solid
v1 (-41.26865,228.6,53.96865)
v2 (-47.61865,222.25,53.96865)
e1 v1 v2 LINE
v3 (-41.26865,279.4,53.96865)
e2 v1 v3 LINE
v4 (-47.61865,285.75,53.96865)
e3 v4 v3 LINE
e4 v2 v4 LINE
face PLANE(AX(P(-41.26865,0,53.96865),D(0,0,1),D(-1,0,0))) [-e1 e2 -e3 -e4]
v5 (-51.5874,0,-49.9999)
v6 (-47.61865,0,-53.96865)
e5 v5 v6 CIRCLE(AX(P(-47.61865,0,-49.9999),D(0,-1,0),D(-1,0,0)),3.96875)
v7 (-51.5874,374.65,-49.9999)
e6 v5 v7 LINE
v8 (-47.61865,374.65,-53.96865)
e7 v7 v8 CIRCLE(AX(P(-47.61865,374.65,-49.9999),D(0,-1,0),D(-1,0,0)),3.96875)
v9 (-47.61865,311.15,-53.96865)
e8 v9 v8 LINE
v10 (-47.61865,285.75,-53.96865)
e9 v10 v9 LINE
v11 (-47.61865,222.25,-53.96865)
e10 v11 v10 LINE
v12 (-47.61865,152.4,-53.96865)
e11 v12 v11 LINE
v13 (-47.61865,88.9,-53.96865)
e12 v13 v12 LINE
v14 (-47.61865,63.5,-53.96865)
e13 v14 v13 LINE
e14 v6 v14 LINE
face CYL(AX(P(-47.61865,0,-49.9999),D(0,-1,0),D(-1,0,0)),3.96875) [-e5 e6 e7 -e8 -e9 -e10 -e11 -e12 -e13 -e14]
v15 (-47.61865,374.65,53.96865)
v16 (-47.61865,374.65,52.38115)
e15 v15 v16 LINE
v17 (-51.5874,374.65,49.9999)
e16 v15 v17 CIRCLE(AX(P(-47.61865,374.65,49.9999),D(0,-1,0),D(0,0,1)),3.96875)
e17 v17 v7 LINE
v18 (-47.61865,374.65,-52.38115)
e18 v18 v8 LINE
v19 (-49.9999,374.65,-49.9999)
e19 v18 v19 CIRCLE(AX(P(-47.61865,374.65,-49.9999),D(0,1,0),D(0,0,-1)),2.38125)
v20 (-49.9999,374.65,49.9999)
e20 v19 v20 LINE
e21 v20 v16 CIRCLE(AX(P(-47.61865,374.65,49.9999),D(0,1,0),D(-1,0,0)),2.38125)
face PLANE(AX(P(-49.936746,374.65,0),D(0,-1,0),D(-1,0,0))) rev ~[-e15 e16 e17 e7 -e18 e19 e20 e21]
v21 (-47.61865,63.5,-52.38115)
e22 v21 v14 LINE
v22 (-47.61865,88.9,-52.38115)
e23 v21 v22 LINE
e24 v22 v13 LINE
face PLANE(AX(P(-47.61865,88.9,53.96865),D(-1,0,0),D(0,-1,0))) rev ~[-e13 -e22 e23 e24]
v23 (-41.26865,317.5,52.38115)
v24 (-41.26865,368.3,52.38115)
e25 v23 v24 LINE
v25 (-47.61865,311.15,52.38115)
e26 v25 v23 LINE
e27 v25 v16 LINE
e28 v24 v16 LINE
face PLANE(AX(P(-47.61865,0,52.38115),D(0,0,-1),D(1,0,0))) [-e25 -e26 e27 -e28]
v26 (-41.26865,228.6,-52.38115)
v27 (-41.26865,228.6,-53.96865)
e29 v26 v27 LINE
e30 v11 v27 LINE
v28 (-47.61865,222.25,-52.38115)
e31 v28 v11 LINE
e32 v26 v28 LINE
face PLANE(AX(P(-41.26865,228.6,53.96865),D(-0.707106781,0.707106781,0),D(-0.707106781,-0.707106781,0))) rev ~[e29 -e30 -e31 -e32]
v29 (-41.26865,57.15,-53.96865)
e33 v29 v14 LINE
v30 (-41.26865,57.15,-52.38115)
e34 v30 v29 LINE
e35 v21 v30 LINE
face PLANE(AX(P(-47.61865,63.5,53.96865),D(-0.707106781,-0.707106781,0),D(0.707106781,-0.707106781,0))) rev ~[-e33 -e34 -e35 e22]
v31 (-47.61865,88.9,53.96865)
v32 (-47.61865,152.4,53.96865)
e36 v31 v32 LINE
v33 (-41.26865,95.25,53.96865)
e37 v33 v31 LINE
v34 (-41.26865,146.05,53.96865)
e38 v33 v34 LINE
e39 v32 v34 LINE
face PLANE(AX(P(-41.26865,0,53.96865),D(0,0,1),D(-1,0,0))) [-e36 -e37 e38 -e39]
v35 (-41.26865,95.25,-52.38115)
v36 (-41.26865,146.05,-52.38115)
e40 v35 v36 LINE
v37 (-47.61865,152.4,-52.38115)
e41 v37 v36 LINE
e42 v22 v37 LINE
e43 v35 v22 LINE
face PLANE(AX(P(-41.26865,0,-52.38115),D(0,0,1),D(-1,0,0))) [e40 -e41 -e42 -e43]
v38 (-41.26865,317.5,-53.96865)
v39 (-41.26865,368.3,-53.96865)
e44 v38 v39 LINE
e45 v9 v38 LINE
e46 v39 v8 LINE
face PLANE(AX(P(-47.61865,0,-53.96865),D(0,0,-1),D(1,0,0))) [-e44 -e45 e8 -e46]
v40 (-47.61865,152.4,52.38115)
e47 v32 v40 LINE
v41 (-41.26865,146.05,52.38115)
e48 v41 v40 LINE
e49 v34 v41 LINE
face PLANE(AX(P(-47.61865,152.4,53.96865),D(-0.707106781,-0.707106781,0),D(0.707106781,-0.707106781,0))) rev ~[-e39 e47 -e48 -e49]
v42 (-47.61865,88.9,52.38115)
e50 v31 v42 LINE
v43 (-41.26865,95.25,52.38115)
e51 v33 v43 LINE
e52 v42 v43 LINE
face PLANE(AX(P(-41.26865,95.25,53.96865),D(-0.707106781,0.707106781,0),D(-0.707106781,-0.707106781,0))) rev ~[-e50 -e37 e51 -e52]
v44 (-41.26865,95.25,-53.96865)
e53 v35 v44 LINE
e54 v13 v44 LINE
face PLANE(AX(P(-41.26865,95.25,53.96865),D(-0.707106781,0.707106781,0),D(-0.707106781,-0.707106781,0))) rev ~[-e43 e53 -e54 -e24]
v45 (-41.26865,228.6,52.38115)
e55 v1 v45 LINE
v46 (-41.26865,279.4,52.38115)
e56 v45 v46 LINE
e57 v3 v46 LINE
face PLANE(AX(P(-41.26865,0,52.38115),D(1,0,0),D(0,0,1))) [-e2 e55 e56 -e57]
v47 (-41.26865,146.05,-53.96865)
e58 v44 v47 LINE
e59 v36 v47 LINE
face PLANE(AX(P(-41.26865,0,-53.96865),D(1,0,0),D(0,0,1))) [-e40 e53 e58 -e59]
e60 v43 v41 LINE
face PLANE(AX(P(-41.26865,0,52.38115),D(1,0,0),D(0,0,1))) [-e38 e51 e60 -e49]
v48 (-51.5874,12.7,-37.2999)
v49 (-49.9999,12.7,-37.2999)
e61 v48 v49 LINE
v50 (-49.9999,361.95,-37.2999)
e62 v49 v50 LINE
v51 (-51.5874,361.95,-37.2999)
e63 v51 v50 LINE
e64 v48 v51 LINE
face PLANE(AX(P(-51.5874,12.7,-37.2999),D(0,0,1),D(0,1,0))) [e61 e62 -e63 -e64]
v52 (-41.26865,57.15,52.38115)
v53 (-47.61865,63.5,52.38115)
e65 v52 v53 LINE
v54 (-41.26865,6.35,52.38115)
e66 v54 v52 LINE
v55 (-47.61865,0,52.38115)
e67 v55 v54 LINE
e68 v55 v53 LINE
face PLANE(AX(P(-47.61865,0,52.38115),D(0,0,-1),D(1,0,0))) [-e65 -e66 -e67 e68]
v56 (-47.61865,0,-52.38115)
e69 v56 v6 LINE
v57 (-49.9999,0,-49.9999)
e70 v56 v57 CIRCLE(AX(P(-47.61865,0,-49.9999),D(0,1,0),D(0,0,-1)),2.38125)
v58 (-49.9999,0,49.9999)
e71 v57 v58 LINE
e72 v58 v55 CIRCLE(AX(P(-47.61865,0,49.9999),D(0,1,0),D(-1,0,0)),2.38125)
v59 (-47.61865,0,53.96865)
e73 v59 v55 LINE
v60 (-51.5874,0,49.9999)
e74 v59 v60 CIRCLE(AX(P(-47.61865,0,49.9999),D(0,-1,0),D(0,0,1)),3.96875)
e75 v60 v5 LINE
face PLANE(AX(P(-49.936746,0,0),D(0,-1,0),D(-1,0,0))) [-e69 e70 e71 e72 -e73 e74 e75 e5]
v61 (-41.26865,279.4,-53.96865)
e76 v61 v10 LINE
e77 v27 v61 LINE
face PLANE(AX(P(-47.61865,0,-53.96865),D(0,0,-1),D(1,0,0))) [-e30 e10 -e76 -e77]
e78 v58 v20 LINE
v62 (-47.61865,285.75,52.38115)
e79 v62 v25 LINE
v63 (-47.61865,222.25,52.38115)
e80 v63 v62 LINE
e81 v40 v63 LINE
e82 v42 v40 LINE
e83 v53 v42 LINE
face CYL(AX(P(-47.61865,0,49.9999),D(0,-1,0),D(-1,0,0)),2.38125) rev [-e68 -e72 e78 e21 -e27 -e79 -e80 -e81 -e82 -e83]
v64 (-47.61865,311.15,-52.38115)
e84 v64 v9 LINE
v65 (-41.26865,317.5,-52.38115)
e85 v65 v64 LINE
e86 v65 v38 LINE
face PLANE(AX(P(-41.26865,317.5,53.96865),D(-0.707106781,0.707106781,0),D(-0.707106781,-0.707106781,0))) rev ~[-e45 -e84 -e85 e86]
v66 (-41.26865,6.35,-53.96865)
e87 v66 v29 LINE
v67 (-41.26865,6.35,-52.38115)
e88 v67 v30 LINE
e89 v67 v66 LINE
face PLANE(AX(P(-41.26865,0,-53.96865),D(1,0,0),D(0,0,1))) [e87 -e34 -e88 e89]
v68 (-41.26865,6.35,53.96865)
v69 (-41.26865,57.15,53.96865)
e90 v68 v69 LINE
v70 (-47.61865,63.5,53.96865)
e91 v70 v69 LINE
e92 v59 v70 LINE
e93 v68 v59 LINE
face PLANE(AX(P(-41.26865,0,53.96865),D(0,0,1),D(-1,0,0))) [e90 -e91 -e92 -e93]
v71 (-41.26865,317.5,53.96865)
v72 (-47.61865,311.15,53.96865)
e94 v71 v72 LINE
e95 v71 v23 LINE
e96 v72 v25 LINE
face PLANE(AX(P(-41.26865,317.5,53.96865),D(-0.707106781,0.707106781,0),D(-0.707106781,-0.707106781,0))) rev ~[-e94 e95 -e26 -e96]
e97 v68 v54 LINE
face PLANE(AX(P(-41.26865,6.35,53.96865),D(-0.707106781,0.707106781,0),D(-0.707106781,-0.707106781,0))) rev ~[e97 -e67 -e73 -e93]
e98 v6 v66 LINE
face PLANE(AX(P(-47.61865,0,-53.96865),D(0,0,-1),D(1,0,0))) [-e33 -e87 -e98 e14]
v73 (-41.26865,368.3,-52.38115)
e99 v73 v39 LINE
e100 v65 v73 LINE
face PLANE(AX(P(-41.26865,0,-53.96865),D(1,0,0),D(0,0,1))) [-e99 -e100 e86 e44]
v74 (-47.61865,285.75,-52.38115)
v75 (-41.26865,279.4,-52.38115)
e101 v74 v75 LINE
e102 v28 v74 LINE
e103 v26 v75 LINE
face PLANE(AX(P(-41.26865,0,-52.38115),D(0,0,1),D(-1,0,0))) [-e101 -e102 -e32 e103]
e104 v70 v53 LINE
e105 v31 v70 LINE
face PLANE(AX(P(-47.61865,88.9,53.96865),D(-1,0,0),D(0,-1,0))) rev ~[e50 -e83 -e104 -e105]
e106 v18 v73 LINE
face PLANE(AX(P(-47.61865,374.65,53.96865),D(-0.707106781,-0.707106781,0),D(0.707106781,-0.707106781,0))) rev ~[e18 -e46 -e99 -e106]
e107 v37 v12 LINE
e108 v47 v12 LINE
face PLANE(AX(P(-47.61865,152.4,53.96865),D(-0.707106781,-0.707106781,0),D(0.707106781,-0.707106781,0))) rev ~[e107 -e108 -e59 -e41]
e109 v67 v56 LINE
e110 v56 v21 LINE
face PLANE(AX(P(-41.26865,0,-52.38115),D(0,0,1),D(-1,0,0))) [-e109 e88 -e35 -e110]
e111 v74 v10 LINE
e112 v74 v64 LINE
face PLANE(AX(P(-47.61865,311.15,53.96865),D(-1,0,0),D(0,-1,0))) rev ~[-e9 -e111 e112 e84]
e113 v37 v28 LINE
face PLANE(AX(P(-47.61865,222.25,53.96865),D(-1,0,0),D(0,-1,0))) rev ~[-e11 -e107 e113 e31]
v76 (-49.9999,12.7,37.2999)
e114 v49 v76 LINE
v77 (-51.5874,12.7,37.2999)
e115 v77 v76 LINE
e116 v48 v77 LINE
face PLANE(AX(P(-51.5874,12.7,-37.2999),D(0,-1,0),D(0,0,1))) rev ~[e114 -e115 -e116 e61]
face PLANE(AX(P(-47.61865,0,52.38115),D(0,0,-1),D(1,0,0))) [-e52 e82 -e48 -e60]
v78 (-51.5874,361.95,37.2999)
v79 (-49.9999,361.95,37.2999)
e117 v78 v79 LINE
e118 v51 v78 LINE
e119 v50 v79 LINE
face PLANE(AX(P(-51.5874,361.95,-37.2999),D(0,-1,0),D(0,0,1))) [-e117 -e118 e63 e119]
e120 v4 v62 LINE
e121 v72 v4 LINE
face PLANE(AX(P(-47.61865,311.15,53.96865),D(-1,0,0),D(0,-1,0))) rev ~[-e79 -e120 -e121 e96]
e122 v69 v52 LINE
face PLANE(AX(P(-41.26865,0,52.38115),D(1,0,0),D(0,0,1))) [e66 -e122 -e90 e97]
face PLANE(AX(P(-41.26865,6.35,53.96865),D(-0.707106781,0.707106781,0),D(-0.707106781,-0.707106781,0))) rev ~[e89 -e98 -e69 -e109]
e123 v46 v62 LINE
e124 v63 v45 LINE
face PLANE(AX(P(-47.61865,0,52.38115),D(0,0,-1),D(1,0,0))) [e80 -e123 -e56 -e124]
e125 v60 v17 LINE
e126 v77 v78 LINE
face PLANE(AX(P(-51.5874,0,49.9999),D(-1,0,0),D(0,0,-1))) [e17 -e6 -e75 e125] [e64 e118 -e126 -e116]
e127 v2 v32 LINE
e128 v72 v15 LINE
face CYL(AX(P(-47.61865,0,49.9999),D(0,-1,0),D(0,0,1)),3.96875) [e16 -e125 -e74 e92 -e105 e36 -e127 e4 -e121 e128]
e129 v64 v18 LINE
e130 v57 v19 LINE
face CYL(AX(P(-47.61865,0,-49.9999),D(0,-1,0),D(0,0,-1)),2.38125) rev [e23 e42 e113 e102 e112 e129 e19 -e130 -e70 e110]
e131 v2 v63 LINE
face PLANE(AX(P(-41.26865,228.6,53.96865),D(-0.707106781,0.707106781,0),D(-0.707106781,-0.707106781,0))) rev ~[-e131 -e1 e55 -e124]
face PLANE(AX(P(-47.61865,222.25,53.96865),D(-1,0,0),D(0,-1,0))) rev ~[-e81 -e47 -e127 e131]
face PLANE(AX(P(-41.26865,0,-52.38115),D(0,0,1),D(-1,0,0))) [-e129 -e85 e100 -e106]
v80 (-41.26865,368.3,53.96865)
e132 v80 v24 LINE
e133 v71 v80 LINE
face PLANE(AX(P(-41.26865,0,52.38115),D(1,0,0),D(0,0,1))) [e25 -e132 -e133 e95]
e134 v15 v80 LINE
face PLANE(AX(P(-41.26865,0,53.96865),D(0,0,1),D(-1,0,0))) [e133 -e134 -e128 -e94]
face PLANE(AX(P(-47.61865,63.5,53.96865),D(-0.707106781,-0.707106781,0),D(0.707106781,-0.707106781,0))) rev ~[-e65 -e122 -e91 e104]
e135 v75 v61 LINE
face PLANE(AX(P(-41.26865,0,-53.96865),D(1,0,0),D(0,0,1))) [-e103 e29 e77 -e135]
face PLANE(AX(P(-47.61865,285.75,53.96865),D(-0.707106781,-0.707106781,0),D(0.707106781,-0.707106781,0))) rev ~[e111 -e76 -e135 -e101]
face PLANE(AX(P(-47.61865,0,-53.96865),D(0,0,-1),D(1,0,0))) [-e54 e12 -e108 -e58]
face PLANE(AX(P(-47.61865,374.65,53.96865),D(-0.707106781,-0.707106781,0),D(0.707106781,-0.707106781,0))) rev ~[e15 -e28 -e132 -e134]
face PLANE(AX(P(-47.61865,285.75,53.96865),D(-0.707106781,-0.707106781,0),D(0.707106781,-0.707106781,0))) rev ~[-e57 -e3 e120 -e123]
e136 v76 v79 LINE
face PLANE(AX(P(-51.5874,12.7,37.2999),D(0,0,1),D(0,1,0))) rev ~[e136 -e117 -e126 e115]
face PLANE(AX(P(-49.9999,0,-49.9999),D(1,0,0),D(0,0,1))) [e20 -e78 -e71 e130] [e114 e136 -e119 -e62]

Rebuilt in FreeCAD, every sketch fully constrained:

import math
import FreeCAD as App
import Part
import Sketcher
from FreeCAD import Vector
Q = App.Units.Quantity


def add_polygon(sketch, points):
    """Adds a closed chain of lines whose ends are joined by coincident constraints."""
    first, n = sketch.GeometryCount, len(points)
    for a, b in zip(points, points[1:] + points[:1]):
        sketch.addGeometry(Part.LineSegment(App.Vector(*a, 0), App.Vector(*b, 0)), False)
    for i in range(n):
        sketch.addConstraint(Sketcher.Constraint("Coincident", first + i, 2, first + (i + 1) % n, 1))

doc = App.newDocument("Part")
body = doc.addObject("PartDesign::Body", "Body")

sketch1 = body.newObject("Sketcher::SketchObject", "Sketch")
sketch1.AttachmentSupport = (doc.getObject("XZ_Plane"), [""])
sketch1.MapMode = "FlatFace"
sketch1.addGeometry([
    Part.LineSegment(Vector(-41.3, 52.4, 0), Vector(-47.6, 52.4, 0)),
    Part.ArcOfCircle(Part.Circle(Vector(-47.6, 50, 0), Vector(0, 0, 1), 2.4), math.radians(90), math.radians(180)),
    Part.LineSegment(Vector(-50, 50, 0), Vector(-50, -50, 0)),
    Part.ArcOfCircle(Part.Circle(Vector(-47.6, -50, 0), Vector(0, 0, 1), 2.4), math.radians(180), math.radians(270)),
    Part.LineSegment(Vector(-47.6, -52.4, 0), Vector(-41.3, -52.4, 0)),
    Part.LineSegment(Vector(-41.3, -52.4, 0), Vector(-41.3, -54, 0)),
    Part.LineSegment(Vector(-41.3, -54, 0), Vector(-47.6, -54, 0)),
    Part.ArcOfCircle(Part.Circle(Vector(-47.6, -50, 0), Vector(0, 0, 1), 4), math.radians(180), math.radians(270)),
    Part.LineSegment(Vector(-51.6, -50, 0), Vector(-51.6, 50, 0)),
    Part.ArcOfCircle(Part.Circle(Vector(-47.6, 50, 0), Vector(0, 0, 1), 4), math.radians(90), math.radians(180)),
    Part.LineSegment(Vector(-47.6, 54, 0), Vector(-41.3, 54, 0)),
    Part.LineSegment(Vector(-41.3, 54, 0), Vector(-41.3, 52.4, 0)),
], False)
sketch1.addConstraint([
    Sketcher.Constraint("Tangent", 0, 2, 1, 1),
    Sketcher.Constraint("Tangent", 1, 2, 2, 1),
    Sketcher.Constraint("Tangent", 2, 2, 3, 1),
    Sketcher.Constraint("Tangent", 3, 2, 4, 1),
    Sketcher.Constraint("Coincident", 4, 2, 5, 1),
    Sketcher.Constraint("Coincident", 5, 2, 6, 1),
    Sketcher.Constraint("Tangent", 6, 2, 7, 2),
    Sketcher.Constraint("Tangent", 7, 1, 8, 1),
    Sketcher.Constraint("Tangent", 8, 2, 9, 2),
    Sketcher.Constraint("Tangent", 9, 1, 10, 1),
    Sketcher.Constraint("Coincident", 10, 2, 11, 1),
    Sketcher.Constraint("Coincident", 11, 2, 0, 1),
    Sketcher.Constraint("Horizontal", 0),
    Sketcher.Constraint("Vertical", 2),
    Sketcher.Constraint("Horizontal", 4),
    Sketcher.Constraint("Vertical", 5),
    Sketcher.Constraint("Horizontal", 6),
    Sketcher.Constraint("Vertical", 8),
    Sketcher.Constraint("Horizontal", 10),
    Sketcher.Constraint("Vertical", 11),
    Sketcher.Constraint("Coincident", 7, 3, 3, 3),
    Sketcher.Constraint("Coincident", 9, 3, 1, 3),
    Sketcher.Constraint("Equal", 1, 3),
    Sketcher.Constraint("Symmetric", 5, 2, 10, 2, -1),
    Sketcher.Constraint("Radius", 1, Q("0.09375 in")),
    Sketcher.Constraint("Radius", 7, Q("0.15625 in")),
    Sketcher.Constraint("DistanceX", 0, 2, 0, 1, Q("0.25 in")),
    Sketcher.Constraint("DistanceY", 2, 2, 2, 1, Q("3.937 in")),
    Sketcher.Constraint("DistanceX", 7, 1, -1, 1, Q("2.031 in")),
])
pad1 = body.newObject("PartDesign::Pad", "Pad")
pad1.Profile = sketch1
pad1.Length = Q("14.75 in")
pad1.Reversed = True

sketch2 = body.newObject("Sketcher::SketchObject", "Sketch001")
sketch2.AttachmentSupport = (doc.getObject("XY_Plane"), [""])
sketch2.MapMode = "FlatFace"
sketch2.AttachmentOffset = App.Placement(Vector(0, 0, 53.96865), App.Rotation())
add_polygon(sketch2, [(-41, 95), (-48, 89), (-48, 64), (-41, 57)])
add_polygon(sketch2, [(-41, 6), (-48, 0), (-41, 0)])
add_polygon(sketch2, [(-41, 229), (-48, 222), (-48, 152), (-41, 146)])
add_polygon(sketch2, [(-41, 318), (-48, 311), (-48, 286), (-41, 279)])
add_polygon(sketch2, [(-41, 375), (-48, 375), (-41, 368)])
sketch2.addConstraint([
    Sketcher.Constraint("Vertical", 1),
    Sketcher.Constraint("Vertical", 3),
    Sketcher.Constraint("Horizontal", 5),
    Sketcher.Constraint("Vertical", 6),
    Sketcher.Constraint("Vertical", 8),
    Sketcher.Constraint("Vertical", 10),
    Sketcher.Constraint("Vertical", 12),
    Sketcher.Constraint("Vertical", 14),
    Sketcher.Constraint("Horizontal", 15),
    Sketcher.Constraint("Vertical", 17),
    Sketcher.Constraint("PointOnObject", 4, 2, -1),
    Sketcher.Constraint("Perpendicular", 0, 2),
    Sketcher.Constraint("Perpendicular", 2, 4),
    Sketcher.Constraint("Parallel", 4, 7),
    Sketcher.Constraint("Perpendicular", 7, 9),
    Sketcher.Constraint("Perpendicular", 9, 11),
    Sketcher.Constraint("Perpendicular", 11, 13),
    Sketcher.Constraint("Parallel", 13, 16),
    Sketcher.Constraint("Vertical", 1, 2, 4, 2),
    Sketcher.Constraint("Vertical", 3, 2, 5, 2),
    Sketcher.Constraint("Vertical", 4, 2, 7, 2),
    Sketcher.Constraint("Vertical", 6, 2, 9, 2),
    Sketcher.Constraint("Vertical", 8, 2, 11, 2),
    Sketcher.Constraint("Vertical", 10, 2, 13, 2),
    Sketcher.Constraint("Vertical", 12, 2, 15, 2),
    Sketcher.Constraint("Vertical", 14, 2, 16, 2),
    Sketcher.Constraint("Equal", 15, 6),
    Sketcher.Constraint("Equal", 1, 12),
    Sketcher.Constraint("DistanceY", 1, 2, 1, 1, Q("1 in")),
    Sketcher.Constraint("DistanceY", 3, 1, 3, 2, Q("1.5 in")),
    Sketcher.Constraint("DistanceY", -1, 1, 8, 2, Q("6 in")),
    Sketcher.Constraint("DistanceY", -1, 1, 10, 2, Q("9 in")),
    Sketcher.Constraint("DistanceY", -1, 1, 13, 2, Q("11 in")),
    Sketcher.Constraint("DistanceY", 6, 2, 2, 2, Q("2 in")),
    Sketcher.Constraint("DistanceY", 14, 2, 16, 2, Q("2 in")),
    Sketcher.Constraint("DistanceX", 0, 2, -1, 1, 47.61865),
])
pocket1 = body.newObject("PartDesign::Pocket", "Pocket")
pocket1.Profile = sketch2
pocket1.Length = Q("4.25 in")

sketch3 = body.newObject("Sketcher::SketchObject", "Sketch002")
sketch3.AttachmentSupport = (doc.getObject("YZ_Plane"), [""])
sketch3.MapMode = "FlatFace"
sketch3.AttachmentOffset = App.Placement(Vector(0, 0, -2.031 * 25.4), App.Rotation())
add_polygon(sketch3, [(362, -37), (13, -37), (13, 37), (362, 37)])
sketch3.addConstraint([
    Sketcher.Constraint("Horizontal", 0),
    Sketcher.Constraint("Vertical", 1),
    Sketcher.Constraint("Horizontal", 2),
    Sketcher.Constraint("Vertical", 3),
    Sketcher.Constraint("DistanceX", 0, 2, 0, 1, Q("13.75 in")),
    Sketcher.Constraint("DistanceX", -1, 1, 0, 2, Q("0.5 in")),
    Sketcher.Constraint("DistanceY", 1, 1, 1, 2, Q("2.937 in")),
    Sketcher.Constraint("DistanceY", 0, 2, -1, 1, Q("1.4685 in")),
])
pocket2 = body.newObject("PartDesign::Pocket", "Pocket001")
pocket2.Profile = sketch3
pocket2.Length = Q("0.0625 in")
pocket2.Reversed = True

doc.recompute()
